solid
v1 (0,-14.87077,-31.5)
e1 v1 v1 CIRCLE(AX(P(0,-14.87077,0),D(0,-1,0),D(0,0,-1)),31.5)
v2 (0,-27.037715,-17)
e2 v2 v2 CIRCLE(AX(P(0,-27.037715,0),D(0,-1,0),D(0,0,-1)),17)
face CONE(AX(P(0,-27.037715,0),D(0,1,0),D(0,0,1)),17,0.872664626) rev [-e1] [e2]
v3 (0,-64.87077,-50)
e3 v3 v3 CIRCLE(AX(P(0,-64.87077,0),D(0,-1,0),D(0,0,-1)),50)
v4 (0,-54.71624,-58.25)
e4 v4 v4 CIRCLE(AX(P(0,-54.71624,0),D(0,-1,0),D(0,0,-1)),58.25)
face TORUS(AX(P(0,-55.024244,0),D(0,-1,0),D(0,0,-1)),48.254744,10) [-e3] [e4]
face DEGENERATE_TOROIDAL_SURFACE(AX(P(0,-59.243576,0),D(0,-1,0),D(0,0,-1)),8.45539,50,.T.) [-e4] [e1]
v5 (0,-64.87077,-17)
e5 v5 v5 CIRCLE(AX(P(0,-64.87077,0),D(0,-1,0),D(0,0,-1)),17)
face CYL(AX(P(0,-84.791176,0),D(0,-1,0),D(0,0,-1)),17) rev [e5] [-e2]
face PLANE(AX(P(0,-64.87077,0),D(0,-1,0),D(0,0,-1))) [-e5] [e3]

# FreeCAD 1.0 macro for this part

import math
import FreeCAD as App
import Part
import Sketcher
Q = App.Units.Quantity

doc = App.newDocument("Part")
body = doc.addObject("PartDesign::Body", "Body")

sketch1 = body.newObject("Sketcher::SketchObject", "Sketch")
sketch1.AttachmentSupport = (doc.getObject("XY_Plane"), [""])
sketch1.MapMode = "FlatFace"
sketch1.addGeometry([
    Part.LineSegment(App.Vector(17, -27, 0), App.Vector(17, -65, 0)),
    Part.LineSegment(App.Vector(17, -65, 0), App.Vector(50, -65, 0)),
    Part.ArcOfCircle(Part.Circle(App.Vector(48, -55, 0), App.Vector(0, 0, 1), 10), math.radians(-80), math.radians(2)),
    Part.ArcOfCircle(Part.Circle(App.Vector(8, -59, 0), App.Vector(0, 0, 1), 50), math.radians(5), math.radians(63)),
    Part.LineSegment(App.Vector(32, -15, 0), App.Vector(17, -27, 0)),
], False)
sketch1.addConstraint([
    Sketcher.Constraint("Coincident", 0, 2, 1, 1),
    Sketcher.Constraint("Coincident", 1, 2, 2, 1),
    Sketcher.Constraint("Coincident", 2, 2, 3, 1),
    Sketcher.Constraint("Coincident", 3, 2, 4, 1),
    Sketcher.Constraint("Coincident", 4, 2, 0, 1),
    Sketcher.Constraint("Vertical", 0),
    Sketcher.Constraint("Horizontal", 1),
    Sketcher.Constraint("Radius", 2, Q("10 mm")),
    Sketcher.Constraint("Radius", 3, Q("50 mm")),
    Sketcher.Constraint("DistanceX", 1, 1, 1, 2, Q("33 mm")),
    Sketcher.Constraint("Angle", 4, Q("-140 deg")),
    Sketcher.Constraint("DistanceX", -1, 1, 0, 2, Q("17 mm")),
    Sketcher.Constraint("DistanceY", 0, 2, 3, 2, Q("50 mm")),
    Sketcher.Constraint("DistanceX", -1, 1, 3, 2, Q("31.5 mm")),
    Sketcher.Constraint("DistanceX", -1, 1, 2, 2, Q("58.25 mm")),
    Sketcher.Constraint("DistanceX", -1, 1, 3, 3, Q("8.45539 mm")),
    Sketcher.Constraint("DistanceY", 0, 2, -1, 1, Q("64.87077 mm")),
])
revolution = body.newObject("PartDesign::Revolution", "Revolution")
revolution.Profile = sketch1
revolution.ReferenceAxis = (sketch1, ["V_Axis"])
revolution.Angle = 360

doc.recompute()
